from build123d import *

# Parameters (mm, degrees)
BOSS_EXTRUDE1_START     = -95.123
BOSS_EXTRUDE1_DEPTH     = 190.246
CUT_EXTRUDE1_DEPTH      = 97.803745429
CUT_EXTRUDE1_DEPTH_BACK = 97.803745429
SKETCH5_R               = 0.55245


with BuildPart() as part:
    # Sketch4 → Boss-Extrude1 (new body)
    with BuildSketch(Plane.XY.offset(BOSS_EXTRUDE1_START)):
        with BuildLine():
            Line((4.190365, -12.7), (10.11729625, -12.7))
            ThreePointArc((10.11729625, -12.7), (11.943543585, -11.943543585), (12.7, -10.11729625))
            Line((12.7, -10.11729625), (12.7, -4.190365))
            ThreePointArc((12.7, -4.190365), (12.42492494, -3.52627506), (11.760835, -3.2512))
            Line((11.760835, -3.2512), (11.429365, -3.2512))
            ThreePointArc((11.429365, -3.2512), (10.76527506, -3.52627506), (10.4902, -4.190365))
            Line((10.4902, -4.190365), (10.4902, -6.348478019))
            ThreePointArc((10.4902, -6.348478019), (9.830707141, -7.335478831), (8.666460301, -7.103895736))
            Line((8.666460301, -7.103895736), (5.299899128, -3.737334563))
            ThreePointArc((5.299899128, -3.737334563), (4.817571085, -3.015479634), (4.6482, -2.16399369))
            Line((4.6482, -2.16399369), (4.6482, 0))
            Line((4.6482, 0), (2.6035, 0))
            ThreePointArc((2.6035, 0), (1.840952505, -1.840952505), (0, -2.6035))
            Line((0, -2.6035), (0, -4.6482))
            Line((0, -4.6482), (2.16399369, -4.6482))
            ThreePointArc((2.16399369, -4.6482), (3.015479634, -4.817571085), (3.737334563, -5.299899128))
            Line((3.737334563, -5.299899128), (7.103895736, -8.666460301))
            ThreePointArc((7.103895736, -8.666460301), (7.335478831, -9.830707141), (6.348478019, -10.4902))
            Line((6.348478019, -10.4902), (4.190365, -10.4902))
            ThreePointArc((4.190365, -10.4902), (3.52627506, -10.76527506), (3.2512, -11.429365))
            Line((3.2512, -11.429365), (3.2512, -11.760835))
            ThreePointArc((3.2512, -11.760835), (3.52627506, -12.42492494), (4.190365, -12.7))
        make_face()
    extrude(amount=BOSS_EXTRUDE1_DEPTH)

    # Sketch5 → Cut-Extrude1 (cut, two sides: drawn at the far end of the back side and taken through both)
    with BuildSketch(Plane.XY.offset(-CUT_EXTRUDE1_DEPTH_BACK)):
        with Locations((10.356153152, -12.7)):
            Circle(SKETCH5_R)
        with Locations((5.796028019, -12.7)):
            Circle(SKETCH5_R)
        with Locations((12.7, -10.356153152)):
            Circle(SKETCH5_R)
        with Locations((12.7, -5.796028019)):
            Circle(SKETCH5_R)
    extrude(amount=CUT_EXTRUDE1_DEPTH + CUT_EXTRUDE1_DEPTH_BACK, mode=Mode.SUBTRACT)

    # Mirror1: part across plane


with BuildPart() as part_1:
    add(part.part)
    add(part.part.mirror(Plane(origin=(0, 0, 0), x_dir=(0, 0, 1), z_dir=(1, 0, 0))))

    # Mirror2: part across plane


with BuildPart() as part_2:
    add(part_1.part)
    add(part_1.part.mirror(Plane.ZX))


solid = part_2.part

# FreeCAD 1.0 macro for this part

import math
import FreeCAD as App
import Part
import Sketcher
from FreeCAD import Vector
Q = App.Units.Quantity

doc = App.newDocument("Part")
body = doc.addObject("PartDesign::Body", "Body")

sketch1 = body.newObject("Sketcher::SketchObject", "Sketch")
sketch1.AttachmentSupport = (doc.getObject("XY_Plane"), [""])
sketch1.MapMode = "FlatFace"
sketch1.AttachmentOffset = App.Placement(Vector(0, 0, -3.745 * 25.4), App.Rotation())
sketch1.addGeometry(Part.LineSegment(Vector(4.19, -12.7, 0), Vector(10.12, -12.7, 0)), False)
sketch1.addGeometry(Part.ArcOfCircle(Part.Circle(Vector(10.12, -10.12, 0), Vector(0, 0, 1), 2.58), math.radians(-90), math.radians(0)), False)
sketch1.addGeometry(Part.LineSegment(Vector(12.7, -10.12, 0), Vector(12.7, -4.19, 0)), False)
sketch1.addGeometry(Part.ArcOfCircle(Part.Circle(Vector(11.76, -4.19, 0), Vector(0, 0, 1), 0.94), math.radians(0), math.radians(90)), False)
sketch1.addGeometry(Part.LineSegment(Vector(11.76, -3.25, 0), Vector(11.43, -3.25, 0)), False)
sketch1.addGeometry(Part.ArcOfCircle(Part.Circle(Vector(11.43, -4.19, 0), Vector(0, 0, 1), 0.94), math.radians(90), math.radians(180)), False)
sketch1.addGeometry(Part.LineSegment(Vector(10.49, -4.19, 0), Vector(10.49, -6.35, 0)), False)
sketch1.addGeometry(Part.ArcOfCircle(Part.Circle(Vector(9.42, -6.35, 0), Vector(0, 0, 1), 1.07), math.radians(-135), math.radians(0)), False)
sketch1.addGeometry(Part.LineSegment(Vector(8.67, -7.1, 0), Vector(5.3, -3.74, 0)), False)
sketch1.addGeometry(Part.ArcOfCircle(Part.Circle(Vector(6.87, -2.16, 0), Vector(0, 0, 1), 2.23), math.radians(-180), math.radians(-135)), False)
sketch1.addGeometry(Part.LineSegment(Vector(4.65, -2.16, 0), Vector(4.65, 0, 0)), False)
sketch1.addGeometry(Part.LineSegment(Vector(4.65, 0, 0), Vector(2.6, 0, 0)), False)
sketch1.addGeometry(Part.ArcOfCircle(Part.Circle(Vector(0, 0, 0), Vector(0, 0, 1), 2.6), math.radians(-90), math.radians(0)), False)
sketch1.addGeometry(Part.LineSegment(Vector(0, -2.6, 0), Vector(0, -4.65, 0)), False)
sketch1.addGeometry(Part.LineSegment(Vector(0, -4.65, 0), Vector(2.16, -4.65, 0)), False)
sketch1.addGeometry(Part.ArcOfCircle(Part.Circle(Vector(2.16, -6.87, 0), Vector(0, 0, 1), 2.23), math.radians(45), math.radians(90)), False)
sketch1.addGeometry(Part.LineSegment(Vector(3.74, -5.3, 0), Vector(7.1, -8.67, 0)), False)
sketch1.addGeometry(Part.ArcOfCircle(Part.Circle(Vector(6.35, -9.42, 0), Vector(0, 0, 1), 1.07), math.radians(-90), math.radians(45)), False)
sketch1.addGeometry(Part.LineSegment(Vector(6.35, -10.49, 0), Vector(4.19, -10.49, 0)), False)
sketch1.addGeometry(Part.ArcOfCircle(Part.Circle(Vector(4.19, -11.43, 0), Vector(0, 0, 1), 0.94), math.radians(90), math.radians(180)), False)
sketch1.addGeometry(Part.LineSegment(Vector(3.25, -11.43, 0), Vector(3.25, -11.76, 0)), False)
sketch1.addGeometry(Part.ArcOfCircle(Part.Circle(Vector(4.19, -11.76, 0), Vector(0, 0, 1), 0.94), math.radians(-180), math.radians(-90)), False)
sketch1.addConstraint(Sketcher.Constraint("Tangent", 0, 2, 1, 1))
sketch1.addConstraint(Sketcher.Constraint("Tangent", 1, 2, 2, 1))
sketch1.addConstraint(Sketcher.Constraint("Tangent", 2, 2, 3, 1))
sketch1.addConstraint(Sketcher.Constraint("Tangent", 3, 2, 4, 1))
sketch1.addConstraint(Sketcher.Constraint("Tangent", 4, 2, 5, 1))
sketch1.addConstraint(Sketcher.Constraint("Tangent", 5, 2, 6, 1))
sketch1.addConstraint(Sketcher.Constraint("Tangent", 6, 2, 7, 2))
sketch1.addConstraint(Sketcher.Constraint("Tangent", 7, 1, 8, 1))
sketch1.addConstraint(Sketcher.Constraint("Tangent", 8, 2, 9, 2))
sketch1.addConstraint(Sketcher.Constraint("Tangent", 9, 1, 10, 1))
sketch1.addConstraint(Sketcher.Constraint("Coincident", 10, 2, 11, 1))
sketch1.addConstraint(Sketcher.Constraint("Coincident", 11, 2, 12, 2))
sketch1.addConstraint(Sketcher.Constraint("Coincident", 12, 1, 13, 1))
sketch1.addConstraint(Sketcher.Constraint("Coincident", 13, 2, 14, 1))
sketch1.addConstraint(Sketcher.Constraint("Tangent", 14, 2, 15, 2))
sketch1.addConstraint(Sketcher.Constraint("Tangent", 15, 1, 16, 1))
sketch1.addConstraint(Sketcher.Constraint("Tangent", 16, 2, 17, 2))
sketch1.addConstraint(Sketcher.Constraint("Tangent", 17, 1, 18, 1))
sketch1.addConstraint(Sketcher.Constraint("Tangent", 18, 2, 19, 1))
sketch1.addConstraint(Sketcher.Constraint("Tangent", 19, 2, 20, 1))
sketch1.addConstraint(Sketcher.Constraint("Tangent", 20, 2, 21, 1))
sketch1.addConstraint(Sketcher.Constraint("Tangent", 21, 2, 0, 1))
sketch1.addConstraint(Sketcher.Constraint("Horizontal", 0))
sketch1.addConstraint(Sketcher.Constraint("Vertical", 2))
sketch1.addConstraint(Sketcher.Constraint("Horizontal", 4))
sketch1.addConstraint(Sketcher.Constraint("Vertical", 6))
sketch1.addConstraint(Sketcher.Constraint("Vertical", 10))
sketch1.addConstraint(Sketcher.Constraint("Horizontal", 11))
sketch1.addConstraint(Sketcher.Constraint("Vertical", 13))
sketch1.addConstraint(Sketcher.Constraint("Horizontal", 14))
sketch1.addConstraint(Sketcher.Constraint("Horizontal", 18))
sketch1.addConstraint(Sketcher.Constraint("Vertical", 20))
sketch1.addConstraint(Sketcher.Constraint("Coincident", 12, 3, -1, 1))
sketch1.addConstraint(Sketcher.Constraint("Equal", 3, 5))
sketch1.addConstraint(Sketcher.Constraint("Equal", 9, 15))
sketch1.addConstraint(Sketcher.Constraint("Equal", 7, 17))
sketch1.addConstraint(Sketcher.Constraint("Equal", 5, 19))
sketch1.addConstraint(Sketcher.Constraint("Equal", 19, 21))
sketch1.addConstraint(Sketcher.Constraint("PointOnObject", 10, 2, -1))
sketch1.addConstraint(Sketcher.Constraint("PointOnObject", 12, 1, -2))
sketch1.addConstraint(Sketcher.Constraint("Parallel", 8, 16))
sketch1.addConstraint(Sketcher.Constraint("Equal", 0, 2))
sketch1.addConstraint(Sketcher.Constraint("Equal", 18, 6))
sketch1.addConstraint(Sketcher.Constraint("Equal", 14, 10))
sketch1.addConstraint(Sketcher.Constraint("Equal", 11, 13))
sketch1.addConstraint(Sketcher.Constraint("Equal", 4, 20))
sketch1.addConstraint(Sketcher.Constraint("Equal", 8, 16))
sketch1.addConstraint(Sketcher.Constraint("DistanceY", 0, 2, -1, 1, Q("0.5 in")))
sketch1.addConstraint(Sketcher.Constraint("Radius", 9, Q("0.0876 in")))
sketch1.addConstraint(Sketcher.Constraint("Radius", 12, Q("0.1025 in")))
sketch1.addConstraint(Sketcher.Constraint("DistanceX", 9, 1, 5, 2, Q("0.23 in")))
sketch1.addConstraint(Sketcher.Constraint("DistanceX", 11, 2, 11, 1, Q("0.0805 in")))
sketch1.addConstraint(Sketcher.Constraint("DistanceY", 3, 2, -1, 1, Q("0.128 in")))
sketch1.addConstraint(Sketcher.Constraint("Radius", 7, 1.068322))
sketch1.addConstraint(Sketcher.Constraint("DistanceX", 17, 3, 7, 3, Q("0.121 in")))
sketch1.addConstraint(Sketcher.Constraint("Radius", 1, 2.582704))
sketch1.addConstraint(Sketcher.Constraint("Radius", 3, 0.939165))
pad1 = body.newObject("PartDesign::Pad", "Pad")
pad1.Profile = sketch1
pad1.Length = Q("7.49 in")

sketch2 = body.newObject("Sketcher::SketchObject", "Sketch001")
sketch2.AttachmentSupport = (doc.getObject("XY_Plane"), [""])
sketch2.MapMode = "FlatFace"
sketch2.addGeometry(Part.Circle(Vector(10.4, -12.7, 0), Vector(0, 0, 1), 0.6), False)
sketch2.addGeometry(Part.Circle(Vector(5.8, -12.7, 0), Vector(0, 0, 1), 0.6), False)
sketch2.addGeometry(Part.Circle(Vector(12.7, -10.4, 0), Vector(0, 0, 1), 0.6), False)
sketch2.addGeometry(Part.Circle(Vector(12.7, -5.8, 0), Vector(0, 0, 1), 0.6), False)
sketch2.addConstraint(Sketcher.Constraint("Equal", 0, 1))
sketch2.addConstraint(Sketcher.Constraint("Equal", 1, 2))
sketch2.addConstraint(Sketcher.Constraint("Equal", 2, 3))
sketch2.addConstraint(Sketcher.Constraint("Horizontal", 0, 3, 1, 3))
sketch2.addConstraint(Sketcher.Constraint("Vertical", 2, 3, 3, 3))
sketch2.addConstraint(Sketcher.Constraint("Diameter", 0, Q("0.0435 in")))
sketch2.addConstraint(Sketcher.Constraint("DistanceY", 0, 3, -1, 1, Q("0.5 in")))
sketch2.addConstraint(Sketcher.Constraint("DistanceX", -1, 1, 2, 3, Q("0.5 in")))
sketch2.addConstraint(Sketcher.Constraint("DistanceX", -1, 1, 1, 3, 5.796028))
sketch2.addConstraint(Sketcher.Constraint("DistanceY", 3, 3, -1, 1, 5.796028))
sketch2.addConstraint(Sketcher.Constraint("DistanceX", -1, 1, 0, 3, 10.356153))
sketch2.addConstraint(Sketcher.Constraint("DistanceY", 2, 3, -1, 1, 10.356153))
pocket1 = body.newObject("PartDesign::Pocket", "Pocket")
pocket1.Profile = sketch2
pocket1.Type = "ThroughAll"
pocket1.Midplane = True
body2 = doc.addObject("PartDesign::Body", "Body001")
doc.recompute()

body2.BaseFeature = body
doc.recompute()

mirroring = doc.addObject("Part::Mirroring", "Mirroring")
mirroring.Source = body
mirroring.Base = Vector(0, 0, 0)
mirroring.Normal = Vector(1, 0, 0)
body3 = doc.addObject("PartDesign::Body", "Body002")
body3.BaseFeature = mirroring
boolean = body2.newObject("PartDesign::Boolean", "Boolean")
boolean.Type = "Fuse"
boolean.addObjects([body3])
doc.recompute()
body4 = doc.addObject("PartDesign::Body", "Body003")
doc.recompute()

body4.BaseFeature = body2
doc.recompute()

mirroring2 = doc.addObject("Part::Mirroring", "Mirroring001")
mirroring2.Source = body2
mirroring2.Base = Vector(0, 0, 0)
mirroring2.Normal = Vector(0, 1, 0)
body5 = doc.addObject("PartDesign::Body", "Body004")
body5.BaseFeature = mirroring2
boolean2 = body4.newObject("PartDesign::Boolean", "Boolean001")
boolean2.Type = "Fuse"
boolean2.addObjects([body5])
doc.recompute()
mirroring.Visibility = False
mirroring2.Visibility = False

doc.recompute()
